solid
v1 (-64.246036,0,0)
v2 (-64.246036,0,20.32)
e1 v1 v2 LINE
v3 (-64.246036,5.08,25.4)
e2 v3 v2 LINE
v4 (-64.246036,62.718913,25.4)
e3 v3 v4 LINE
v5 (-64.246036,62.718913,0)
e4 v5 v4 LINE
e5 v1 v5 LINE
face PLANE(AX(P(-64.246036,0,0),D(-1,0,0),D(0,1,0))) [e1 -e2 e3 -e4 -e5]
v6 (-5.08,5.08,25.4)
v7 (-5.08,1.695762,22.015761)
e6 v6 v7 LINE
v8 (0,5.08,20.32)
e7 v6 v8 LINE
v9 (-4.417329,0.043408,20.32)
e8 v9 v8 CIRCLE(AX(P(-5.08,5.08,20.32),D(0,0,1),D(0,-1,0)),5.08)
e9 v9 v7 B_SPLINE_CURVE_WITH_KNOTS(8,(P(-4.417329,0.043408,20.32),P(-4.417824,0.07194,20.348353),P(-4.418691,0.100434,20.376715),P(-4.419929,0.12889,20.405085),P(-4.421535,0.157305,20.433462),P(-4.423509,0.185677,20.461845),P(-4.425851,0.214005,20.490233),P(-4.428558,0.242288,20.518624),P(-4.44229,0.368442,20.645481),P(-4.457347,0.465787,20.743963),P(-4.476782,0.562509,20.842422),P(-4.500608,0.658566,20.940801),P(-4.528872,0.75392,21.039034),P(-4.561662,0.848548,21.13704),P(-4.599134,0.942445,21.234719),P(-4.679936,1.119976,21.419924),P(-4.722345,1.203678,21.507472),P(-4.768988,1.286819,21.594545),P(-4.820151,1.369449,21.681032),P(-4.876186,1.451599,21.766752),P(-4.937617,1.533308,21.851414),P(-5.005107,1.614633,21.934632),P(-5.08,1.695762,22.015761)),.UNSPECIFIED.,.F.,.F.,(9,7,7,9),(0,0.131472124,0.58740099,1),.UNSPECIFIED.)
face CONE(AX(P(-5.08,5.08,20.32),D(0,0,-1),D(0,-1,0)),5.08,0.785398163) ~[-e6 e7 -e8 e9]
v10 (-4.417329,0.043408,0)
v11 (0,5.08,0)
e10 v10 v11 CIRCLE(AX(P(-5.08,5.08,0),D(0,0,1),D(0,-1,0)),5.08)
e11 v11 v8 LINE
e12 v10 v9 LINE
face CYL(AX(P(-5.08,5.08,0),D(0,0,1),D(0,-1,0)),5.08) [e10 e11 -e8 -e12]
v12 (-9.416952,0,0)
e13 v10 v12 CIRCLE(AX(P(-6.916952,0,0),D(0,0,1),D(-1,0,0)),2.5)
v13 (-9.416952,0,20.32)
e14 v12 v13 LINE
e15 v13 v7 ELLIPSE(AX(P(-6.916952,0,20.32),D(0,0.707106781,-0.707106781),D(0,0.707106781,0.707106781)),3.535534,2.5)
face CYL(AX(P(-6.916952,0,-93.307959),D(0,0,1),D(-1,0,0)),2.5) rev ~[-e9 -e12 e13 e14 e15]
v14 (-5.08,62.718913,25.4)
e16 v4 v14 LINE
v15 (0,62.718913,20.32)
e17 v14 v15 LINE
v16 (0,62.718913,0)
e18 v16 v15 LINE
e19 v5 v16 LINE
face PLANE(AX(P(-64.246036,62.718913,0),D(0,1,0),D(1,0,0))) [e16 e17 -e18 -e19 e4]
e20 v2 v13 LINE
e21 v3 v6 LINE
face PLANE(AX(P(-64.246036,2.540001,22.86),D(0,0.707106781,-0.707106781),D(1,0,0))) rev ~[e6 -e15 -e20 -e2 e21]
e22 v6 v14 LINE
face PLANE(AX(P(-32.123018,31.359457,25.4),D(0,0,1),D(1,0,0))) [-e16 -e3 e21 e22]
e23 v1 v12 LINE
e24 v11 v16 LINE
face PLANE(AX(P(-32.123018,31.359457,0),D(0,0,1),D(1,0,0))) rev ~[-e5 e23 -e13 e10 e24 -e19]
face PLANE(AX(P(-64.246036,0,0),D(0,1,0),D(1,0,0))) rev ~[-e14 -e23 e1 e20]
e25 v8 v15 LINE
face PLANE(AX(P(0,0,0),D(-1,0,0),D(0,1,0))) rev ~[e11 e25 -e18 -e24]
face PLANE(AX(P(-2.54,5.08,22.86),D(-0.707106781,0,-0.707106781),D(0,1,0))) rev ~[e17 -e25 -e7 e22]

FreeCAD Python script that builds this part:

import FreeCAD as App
import Part
import Sketcher

V = App.Vector
Q = App.Units.Quantity


def edges_at(feature, points):
    """Names of the edges that pass closest to the given points."""
    edges = feature.Shape.Edges
    near = lambda p: min(range(len(edges)), key=lambda i: edges[i].distToShape(Part.Vertex(*p))[0])
    return sorted({f"Edge{near(p) + 1}" for p in points})

doc = App.newDocument("Part")
body = doc.addObject("PartDesign::Body", "Body")

# Sketch on XY plane
sketch1 = doc.addObject("Sketcher::SketchObject", "Sketch")
body.addObject(sketch1)
sketch1.AttachmentSupport = (doc.XY_Plane, [""])
sketch1.MapMode = "FlatFace"
sketch1.addGeometry(Part.LineSegment(V(-64.246036, 62.718913, 0), V(-64.246036, 0, 0)), False)
sketch1.addGeometry(Part.LineSegment(V(-64.246036, 0, 0), V(0, 0, 0)), False)
sketch1.addGeometry(Part.LineSegment(V(0, 0, 0), V(0, 62.718913, 0)), False)
sketch1.addGeometry(Part.LineSegment(V(0, 62.718913, 0), V(-64.246036, 62.718913, 0)), False)
sketch1.addConstraint(Sketcher.Constraint("Coincident", 0, 2, 1, 1))
sketch1.addConstraint(Sketcher.Constraint("Coincident", 1, 2, 2, 1))
sketch1.addConstraint(Sketcher.Constraint("Coincident", 2, 2, 3, 1))
sketch1.addConstraint(Sketcher.Constraint("Coincident", 3, 2, 0, 1))
sketch1.addConstraint(Sketcher.Constraint("Vertical", 0))
sketch1.addConstraint(Sketcher.Constraint("Horizontal", 1))
sketch1.addConstraint(Sketcher.Constraint("Vertical", 2))
sketch1.addConstraint(Sketcher.Constraint("Horizontal", 3))
sketch1.addConstraint(Sketcher.Constraint("Coincident", 1, 2, -1, 1))
sketch1.addConstraint(Sketcher.Constraint("DistanceX", 1, 1, 1, 2, 64.246036))
sketch1.addConstraint(Sketcher.Constraint("DistanceY", 0, 2, 0, 1, 62.718913))
pad1 = doc.addObject("PartDesign::Pad", "Pad")
body.addObject(pad1)
pad1.Profile = sketch1
pad1.Length = Q("1 in")
doc.recompute()

fillet = doc.addObject("PartDesign::Fillet", "Fillet")
body.addObject(fillet)
fillet.Base = (pad1, edges_at(pad1, [(0, 0, 12.7)]))
fillet.Radius = Q("0.2 in")
doc.recompute()

chamfer = doc.addObject("PartDesign::Chamfer", "Chamfer")
body.addObject(chamfer)
chamfer.Base = (fillet, edges_at(fillet, [(0, 33.899, 25.4)]))
chamfer.Size = Q("0.2 in")

# Sketch on XY plane
sketch2 = doc.addObject("Sketcher::SketchObject", "Sketch001")
body.addObject(sketch2)
sketch2.AttachmentSupport = (doc.XY_Plane, [""])
sketch2.MapMode = "FlatFace"
sketch2.addGeometry(Part.Circle(V(-6.916952, 0, 0), V(0, 0, 1), 2.5), False)
sketch2.addConstraint(Sketcher.Constraint("PointOnObject", 0, 3, -1))
sketch2.addConstraint(Sketcher.Constraint("Diameter", 0, 5.0))
sketch2.addConstraint(Sketcher.Constraint("DistanceX", 0, 3, -1, 1, 6.916952))
doc.recompute()
hole = doc.addObject("PartDesign::Hole", "Hole")
body.addObject(hole)
hole.Profile = sketch2
hole.ThreadType = "None"
hole.Diameter = 5
hole.DepthType = "ThroughAll"
hole.Reversed = True

doc.recompute()
